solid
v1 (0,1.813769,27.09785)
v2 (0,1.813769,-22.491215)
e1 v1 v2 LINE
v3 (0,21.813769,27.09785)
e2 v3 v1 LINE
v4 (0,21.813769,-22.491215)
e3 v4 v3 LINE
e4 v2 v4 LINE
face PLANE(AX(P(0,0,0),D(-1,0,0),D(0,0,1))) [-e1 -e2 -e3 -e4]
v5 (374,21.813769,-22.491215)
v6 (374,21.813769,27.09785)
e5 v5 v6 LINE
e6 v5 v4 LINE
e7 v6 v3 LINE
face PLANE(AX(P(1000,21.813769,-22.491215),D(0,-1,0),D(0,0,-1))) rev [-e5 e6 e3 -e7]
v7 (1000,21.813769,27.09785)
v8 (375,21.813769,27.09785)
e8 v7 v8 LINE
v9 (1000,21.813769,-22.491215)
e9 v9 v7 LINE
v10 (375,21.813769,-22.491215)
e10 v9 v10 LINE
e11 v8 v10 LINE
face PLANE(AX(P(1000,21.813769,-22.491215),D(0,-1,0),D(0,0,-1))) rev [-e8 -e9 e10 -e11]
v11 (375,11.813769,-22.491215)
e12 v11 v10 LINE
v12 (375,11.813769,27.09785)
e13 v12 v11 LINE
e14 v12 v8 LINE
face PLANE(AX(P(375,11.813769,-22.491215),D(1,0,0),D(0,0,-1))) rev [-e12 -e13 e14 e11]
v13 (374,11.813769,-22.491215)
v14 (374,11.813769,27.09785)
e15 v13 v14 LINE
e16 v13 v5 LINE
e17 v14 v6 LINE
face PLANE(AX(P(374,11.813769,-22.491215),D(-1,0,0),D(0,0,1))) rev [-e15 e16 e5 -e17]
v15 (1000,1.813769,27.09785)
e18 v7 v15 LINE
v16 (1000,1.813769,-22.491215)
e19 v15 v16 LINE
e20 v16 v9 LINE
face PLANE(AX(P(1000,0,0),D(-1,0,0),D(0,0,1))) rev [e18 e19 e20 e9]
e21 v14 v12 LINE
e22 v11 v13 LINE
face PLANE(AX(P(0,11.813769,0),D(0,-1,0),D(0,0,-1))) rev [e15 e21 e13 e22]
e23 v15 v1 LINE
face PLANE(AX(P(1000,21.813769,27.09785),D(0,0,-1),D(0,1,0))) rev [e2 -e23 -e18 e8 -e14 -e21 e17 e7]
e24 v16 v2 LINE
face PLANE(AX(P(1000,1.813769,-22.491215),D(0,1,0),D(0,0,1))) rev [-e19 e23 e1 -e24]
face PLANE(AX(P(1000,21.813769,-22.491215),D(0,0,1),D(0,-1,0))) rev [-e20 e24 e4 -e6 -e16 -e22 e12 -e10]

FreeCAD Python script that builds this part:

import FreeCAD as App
import Part
import Sketcher
from FreeCAD import Vector

doc = App.newDocument("Part")
body = doc.addObject("PartDesign::Body", "Body")

sketch1 = body.newObject("Sketcher::SketchObject", "Sketch")
sketch1.AttachmentSupport = (doc.getObject("YZ_Plane"), [""])
sketch1.MapMode = "FlatFace"
sketch1.addGeometry([
    Part.LineSegment(Vector(22, 27, 0), Vector(2, 27, 0)),
    Part.LineSegment(Vector(2, 27, 0), Vector(2, -22, 0)),
    Part.LineSegment(Vector(2, -22, 0), Vector(22, -22, 0)),
    Part.LineSegment(Vector(22, -22, 0), Vector(22, 27, 0)),
], False)
sketch1.addConstraint([
    Sketcher.Constraint("Coincident", 0, 2, 1, 1),
    Sketcher.Constraint("Coincident", 1, 2, 2, 1),
    Sketcher.Constraint("Coincident", 2, 2, 3, 1),
    Sketcher.Constraint("Coincident", 3, 2, 0, 1),
    Sketcher.Constraint("Horizontal", 0),
    Sketcher.Constraint("Vertical", 1),
    Sketcher.Constraint("Horizontal", 2),
    Sketcher.Constraint("Vertical", 3),
    Sketcher.Constraint("DistanceX", 0, 2, 0, 1, 20.0),
    Sketcher.Constraint("DistanceY", 1, 2, 1, 1, 49.589065),
    Sketcher.Constraint("DistanceX", -1, 1, 0, 2, 1.813769),
    Sketcher.Constraint("DistanceY", -1, 1, 0, 2, 27.09785),
])
pad1 = body.newObject("PartDesign::Pad", "Pad")
pad1.Profile = sketch1
pad1.Length = 1000

sketch2 = body.newObject("Sketcher::SketchObject", "Sketch001")
sketch2.AttachmentSupport = (doc.getObject("XZ_Plane"), [""])
sketch2.MapMode = "FlatFace"
sketch2.AttachmentOffset = App.Placement(Vector(0, 0, -21.813769), App.Rotation())
sketch2.addGeometry([
    Part.LineSegment(Vector(374, -22.5, 0), Vector(374, 27.1, 0)),
    Part.LineSegment(Vector(374, 27.1, 0), Vector(375, 27.1, 0)),
    Part.LineSegment(Vector(375, 27.1, 0), Vector(375, -22.5, 0)),
    Part.LineSegment(Vector(375, -22.5, 0), Vector(374, -22.5, 0)),
], False)
sketch2.addConstraint([
    Sketcher.Constraint("Coincident", 0, 2, 1, 1),
    Sketcher.Constraint("Coincident", 1, 2, 2, 1),
    Sketcher.Constraint("Coincident", 2, 2, 3, 1),
    Sketcher.Constraint("Coincident", 3, 2, 0, 1),
    Sketcher.Constraint("Vertical", 0),
    Sketcher.Constraint("Horizontal", 1),
    Sketcher.Constraint("Vertical", 2),
    Sketcher.Constraint("Horizontal", 3),
    Sketcher.Constraint("DistanceX", 1, 1, 1, 2, 1.0),
    Sketcher.Constraint("DistanceX", -1, 1, 0, 2, 374.0),
    Sketcher.Constraint("DistanceY", 0, 1, 0, 2, 49.589065),
    Sketcher.Constraint("DistanceY", -1, 1, 0, 2, 27.09785),
])
pocket1 = body.newObject("PartDesign::Pocket", "Pocket")
pocket1.Profile = sketch2
pocket1.Length = 10
pocket1.Reversed = True

doc.recompute()
